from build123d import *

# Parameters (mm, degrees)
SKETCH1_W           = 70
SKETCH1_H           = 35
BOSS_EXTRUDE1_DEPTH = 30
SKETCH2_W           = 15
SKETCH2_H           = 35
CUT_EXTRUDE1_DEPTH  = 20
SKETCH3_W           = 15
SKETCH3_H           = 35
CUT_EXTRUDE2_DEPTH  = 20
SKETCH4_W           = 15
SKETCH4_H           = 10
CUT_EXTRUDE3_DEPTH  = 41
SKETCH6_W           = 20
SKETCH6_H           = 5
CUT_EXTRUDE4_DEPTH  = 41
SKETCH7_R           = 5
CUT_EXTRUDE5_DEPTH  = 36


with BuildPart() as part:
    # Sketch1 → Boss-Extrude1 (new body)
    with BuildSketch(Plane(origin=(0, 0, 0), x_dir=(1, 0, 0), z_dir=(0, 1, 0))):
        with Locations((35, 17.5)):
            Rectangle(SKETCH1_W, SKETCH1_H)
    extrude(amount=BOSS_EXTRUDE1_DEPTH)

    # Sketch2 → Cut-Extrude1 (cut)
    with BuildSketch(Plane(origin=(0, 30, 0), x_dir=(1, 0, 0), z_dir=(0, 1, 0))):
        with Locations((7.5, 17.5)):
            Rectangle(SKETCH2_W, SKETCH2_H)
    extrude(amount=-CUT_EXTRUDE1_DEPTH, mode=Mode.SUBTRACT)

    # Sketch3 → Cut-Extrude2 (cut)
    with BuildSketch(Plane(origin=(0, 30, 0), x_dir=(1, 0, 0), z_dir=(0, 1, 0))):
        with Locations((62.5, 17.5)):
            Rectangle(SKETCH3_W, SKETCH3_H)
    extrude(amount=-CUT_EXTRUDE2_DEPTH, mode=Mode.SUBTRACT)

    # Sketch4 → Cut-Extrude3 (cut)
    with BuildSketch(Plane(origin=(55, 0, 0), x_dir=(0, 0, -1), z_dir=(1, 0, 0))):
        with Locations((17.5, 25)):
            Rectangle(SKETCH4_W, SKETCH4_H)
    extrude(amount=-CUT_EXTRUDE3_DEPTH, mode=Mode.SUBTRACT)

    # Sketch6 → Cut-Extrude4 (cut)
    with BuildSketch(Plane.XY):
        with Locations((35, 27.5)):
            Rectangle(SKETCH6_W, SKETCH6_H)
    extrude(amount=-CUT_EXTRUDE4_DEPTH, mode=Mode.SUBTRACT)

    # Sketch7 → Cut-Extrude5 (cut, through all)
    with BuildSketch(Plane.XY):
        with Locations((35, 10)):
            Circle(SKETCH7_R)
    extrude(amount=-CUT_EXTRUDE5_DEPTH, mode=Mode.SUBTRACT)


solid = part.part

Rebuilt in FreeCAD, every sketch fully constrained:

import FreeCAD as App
import Part
import Sketcher
from FreeCAD import Vector


def add_polygon(sketch, points):
    """Adds a closed chain of lines whose ends are joined by coincident constraints."""
    first, n = sketch.GeometryCount, len(points)
    for a, b in zip(points, points[1:] + points[:1]):
        sketch.addGeometry(Part.LineSegment(App.Vector(*a, 0), App.Vector(*b, 0)), False)
    for i in range(n):
        sketch.addConstraint(Sketcher.Constraint("Coincident", first + i, 2, first + (i + 1) % n, 1))

doc = App.newDocument("Part")
body = doc.addObject("PartDesign::Body", "Body")

sketch1 = doc.addObject("Sketcher::SketchObject", "Sketch")
body.addObject(sketch1)
sketch1.AttachmentSupport = (doc.XZ_Plane, [""])
sketch1.MapMode = "FlatFace"
add_polygon(sketch1, [(0, -35), (0, 0), (70, 0), (70, -35)])
sketch1.addConstraint(Sketcher.Constraint("Vertical", 0))
sketch1.addConstraint(Sketcher.Constraint("Horizontal", 1))
sketch1.addConstraint(Sketcher.Constraint("Vertical", 2))
sketch1.addConstraint(Sketcher.Constraint("Horizontal", 3))
sketch1.addConstraint(Sketcher.Constraint("Coincident", 0, 2, -1, 1))
sketch1.addConstraint(Sketcher.Constraint("DistanceX", 1, 1, 1, 2, 70.0))
sketch1.addConstraint(Sketcher.Constraint("DistanceY", 0, 1, 0, 2, 35.0))
pad1 = doc.addObject("PartDesign::Pad", "Pad")
body.addObject(pad1)
pad1.Profile = sketch1
pad1.Length = 30
pad1.Reversed = True

sketch2 = doc.addObject("Sketcher::SketchObject", "Sketch001")
body.addObject(sketch2)
sketch2.AttachmentSupport = (doc.XZ_Plane, [""])
sketch2.MapMode = "FlatFace"
sketch2.AttachmentOffset = App.Placement(Vector(0, 0, -30), App.Rotation())
add_polygon(sketch2, [(0, -35), (0, 0), (15, 0), (15, -35)])
sketch2.addConstraint(Sketcher.Constraint("Vertical", 0))
sketch2.addConstraint(Sketcher.Constraint("Horizontal", 1))
sketch2.addConstraint(Sketcher.Constraint("Vertical", 2))
sketch2.addConstraint(Sketcher.Constraint("Horizontal", 3))
sketch2.addConstraint(Sketcher.Constraint("Coincident", 0, 2, -1, 1))
sketch2.addConstraint(Sketcher.Constraint("DistanceX", 1, 1, 1, 2, 15.0))
sketch2.addConstraint(Sketcher.Constraint("DistanceY", 0, 1, 0, 2, 35.0))
pocket1 = doc.addObject("PartDesign::Pocket", "Pocket")
body.addObject(pocket1)
pocket1.Profile = sketch2
pocket1.Length = 20
pocket1.Reversed = True

sketch3 = doc.addObject("Sketcher::SketchObject", "Sketch002")
body.addObject(sketch3)
sketch3.AttachmentSupport = (doc.XZ_Plane, [""])
sketch3.MapMode = "FlatFace"
sketch3.AttachmentOffset = App.Placement(Vector(0, 0, -30), App.Rotation())
add_polygon(sketch3, [(55, -35), (55, 0), (70, 0), (70, -35)])
sketch3.addConstraint(Sketcher.Constraint("Vertical", 0))
sketch3.addConstraint(Sketcher.Constraint("Horizontal", 1))
sketch3.addConstraint(Sketcher.Constraint("Vertical", 2))
sketch3.addConstraint(Sketcher.Constraint("Horizontal", 3))
sketch3.addConstraint(Sketcher.Constraint("PointOnObject", 0, 2, -1))
sketch3.addConstraint(Sketcher.Constraint("DistanceX", 1, 1, 1, 2, 15.0))
sketch3.addConstraint(Sketcher.Constraint("DistanceY", 0, 1, 0, 2, 35.0))
sketch3.addConstraint(Sketcher.Constraint("DistanceX", -1, 1, 0, 2, 55.0))
pocket2 = doc.addObject("PartDesign::Pocket", "Pocket001")
body.addObject(pocket2)
pocket2.Profile = sketch3
pocket2.Length = 20
pocket2.Reversed = True

sketch4 = doc.addObject("Sketcher::SketchObject", "Sketch003")
body.addObject(sketch4)
sketch4.AttachmentSupport = (doc.YZ_Plane, [""])
sketch4.MapMode = "FlatFace"
sketch4.AttachmentOffset = App.Placement(Vector(0, 0, 55), App.Rotation())
add_polygon(sketch4, [(30, -10), (20, -10), (20, -25), (30, -25)])
sketch4.addConstraint(Sketcher.Constraint("Horizontal", 0))
sketch4.addConstraint(Sketcher.Constraint("Vertical", 1))
sketch4.addConstraint(Sketcher.Constraint("Horizontal", 2))
sketch4.addConstraint(Sketcher.Constraint("Vertical", 3))
sketch4.addConstraint(Sketcher.Constraint("DistanceX", 0, 2, 0, 1, 10.0))
sketch4.addConstraint(Sketcher.Constraint("DistanceY", 1, 2, 1, 1, 15.0))
sketch4.addConstraint(Sketcher.Constraint("DistanceX", -1, 1, 0, 2, 20.0))
sketch4.addConstraint(Sketcher.Constraint("DistanceY", 0, 2, -1, 1, 10.0))
pocket3 = doc.addObject("PartDesign::Pocket", "Pocket002")
body.addObject(pocket3)
pocket3.Profile = sketch4
pocket3.Length = 41

sketch5 = doc.addObject("Sketcher::SketchObject", "Sketch004")
body.addObject(sketch5)
sketch5.AttachmentSupport = (doc.XY_Plane, [""])
sketch5.MapMode = "FlatFace"
add_polygon(sketch5, [(25, 30), (25, 25), (45, 25), (45, 30)])
sketch5.addConstraint(Sketcher.Constraint("Vertical", 0))
sketch5.addConstraint(Sketcher.Constraint("Horizontal", 1))
sketch5.addConstraint(Sketcher.Constraint("Vertical", 2))
sketch5.addConstraint(Sketcher.Constraint("Horizontal", 3))
sketch5.addConstraint(Sketcher.Constraint("DistanceX", 1, 1, 1, 2, 20.0))
sketch5.addConstraint(Sketcher.Constraint("DistanceY", 0, 2, 0, 1, 5.0))
sketch5.addConstraint(Sketcher.Constraint("DistanceX", -1, 1, 0, 2, 25.0))
sketch5.addConstraint(Sketcher.Constraint("DistanceY", -1, 1, 0, 2, 25.0))
pocket4 = doc.addObject("PartDesign::Pocket", "Pocket003")
body.addObject(pocket4)
pocket4.Profile = sketch5
pocket4.Length = 41

sketch6 = doc.addObject("Sketcher::SketchObject", "Sketch005")
body.addObject(sketch6)
sketch6.AttachmentSupport = (doc.XY_Plane, [""])
sketch6.MapMode = "FlatFace"
sketch6.addGeometry(Part.Circle(Vector(35, 10, 0), Vector(0, 0, 1), 5), False)
sketch6.addConstraint(Sketcher.Constraint("Diameter", 0, 10.0))
sketch6.addConstraint(Sketcher.Constraint("DistanceX", -1, 1, 0, 3, 35.0))
sketch6.addConstraint(Sketcher.Constraint("DistanceY", -1, 1, 0, 3, 10.0))
pocket5 = doc.addObject("PartDesign::Pocket", "Pocket004")
body.addObject(pocket5)
pocket5.Profile = sketch6
pocket5.Type = "ThroughAll"

doc.recompute()
